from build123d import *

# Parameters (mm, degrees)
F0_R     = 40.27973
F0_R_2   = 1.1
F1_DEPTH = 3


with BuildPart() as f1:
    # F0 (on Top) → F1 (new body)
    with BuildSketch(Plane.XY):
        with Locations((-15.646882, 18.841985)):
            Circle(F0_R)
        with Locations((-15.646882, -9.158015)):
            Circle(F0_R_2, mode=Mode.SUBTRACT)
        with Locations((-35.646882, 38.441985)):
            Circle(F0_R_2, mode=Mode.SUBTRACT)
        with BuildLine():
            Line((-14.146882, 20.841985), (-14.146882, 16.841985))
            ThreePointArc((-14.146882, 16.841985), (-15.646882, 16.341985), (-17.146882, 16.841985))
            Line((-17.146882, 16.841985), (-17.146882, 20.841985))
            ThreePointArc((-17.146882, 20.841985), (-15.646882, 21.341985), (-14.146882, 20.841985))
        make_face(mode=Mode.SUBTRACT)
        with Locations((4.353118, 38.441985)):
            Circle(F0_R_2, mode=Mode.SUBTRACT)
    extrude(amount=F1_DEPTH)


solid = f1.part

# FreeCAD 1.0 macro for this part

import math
import FreeCAD as App
import Part
import Sketcher
from FreeCAD import Vector

doc = App.newDocument("Part")
body = doc.addObject("PartDesign::Body", "Body")

sketch1 = body.newObject("Sketcher::SketchObject", "Sketch")
sketch1.AttachmentSupport = (doc.getObject("XY_Plane"), [""])
sketch1.MapMode = "FlatFace"
sketch1.addGeometry([
    Part.Circle(Vector(-15.646882, 18.841985, 0), Vector(0, 0, 1), 40.27973),
    Part.Circle(Vector(-15.646882, -9.158015, 0), Vector(0, 0, 1), 1.1),
    Part.Circle(Vector(-35.646882, 38.441985, 0), Vector(0, 0, 1), 1.1),
    Part.ArcOfCircle(Part.Circle(Vector(-15.646882, 18.841985, 0), Vector(0, 0, 1), 2.5), math.radians(53.130102), math.radians(126.869898)),
    Part.LineSegment(Vector(-14.146882, 20.841985, 0), Vector(-14.146882, 16.841985, 0)),
    Part.ArcOfCircle(Part.Circle(Vector(-15.646882, 18.841985, 0), Vector(0, 0, 1), 2.5), math.radians(-126.869898), math.radians(-53.130102)),
    Part.LineSegment(Vector(-17.146882, 16.841985, 0), Vector(-17.146882, 20.841985, 0)),
    Part.Circle(Vector(4.353118, 38.441985, 0), Vector(0, 0, 1), 1.1),
], False)
sketch1.addConstraint([
    Sketcher.Constraint("Coincident", 3, 1, 4, 1),
    Sketcher.Constraint("Coincident", 4, 2, 5, 2),
    Sketcher.Constraint("Coincident", 5, 1, 6, 1),
    Sketcher.Constraint("Coincident", 6, 2, 3, 2),
    Sketcher.Constraint("Vertical", 4),
    Sketcher.Constraint("Vertical", 6),
    Sketcher.Constraint("Coincident", 3, 3, 0, 3),
    Sketcher.Constraint("Coincident", 5, 3, 0, 3),
    Sketcher.Constraint("Equal", 1, 2),
    Sketcher.Constraint("Equal", 3, 5),
    Sketcher.Constraint("Equal", 2, 7),
    Sketcher.Constraint("Horizontal", 2, 3, 7, 3),
    Sketcher.Constraint("Horizontal", 4, 2, 5, 1),
    Sketcher.Constraint("Vertical", 0, 3, 1, 3),
    Sketcher.Constraint("Diameter", 1, 2.2),
    Sketcher.Constraint("Radius", 3, 2.5),
    Sketcher.Constraint("DistanceY", 4, 2, 4, 1, 4.0),
    Sketcher.Constraint("DistanceY", 1, 3, 0, 3, 28.0),
    Sketcher.Constraint("DistanceX", 2, 3, 0, 3, 20.0),
    Sketcher.Constraint("DistanceX", 0, 3, 7, 3, 20.0),
    Sketcher.Constraint("DistanceY", 0, 3, 2, 3, 19.6),
    Sketcher.Constraint("Diameter", 0, 80.55946),
    Sketcher.Constraint("DistanceX", 2, 3, -1, 1, 35.646882),
    Sketcher.Constraint("DistanceY", -1, 1, 0, 3, 18.841985),
])
pad1 = body.newObject("PartDesign::Pad", "Pad")
pad1.Profile = sketch1
pad1.Length = 3

doc.recompute()
